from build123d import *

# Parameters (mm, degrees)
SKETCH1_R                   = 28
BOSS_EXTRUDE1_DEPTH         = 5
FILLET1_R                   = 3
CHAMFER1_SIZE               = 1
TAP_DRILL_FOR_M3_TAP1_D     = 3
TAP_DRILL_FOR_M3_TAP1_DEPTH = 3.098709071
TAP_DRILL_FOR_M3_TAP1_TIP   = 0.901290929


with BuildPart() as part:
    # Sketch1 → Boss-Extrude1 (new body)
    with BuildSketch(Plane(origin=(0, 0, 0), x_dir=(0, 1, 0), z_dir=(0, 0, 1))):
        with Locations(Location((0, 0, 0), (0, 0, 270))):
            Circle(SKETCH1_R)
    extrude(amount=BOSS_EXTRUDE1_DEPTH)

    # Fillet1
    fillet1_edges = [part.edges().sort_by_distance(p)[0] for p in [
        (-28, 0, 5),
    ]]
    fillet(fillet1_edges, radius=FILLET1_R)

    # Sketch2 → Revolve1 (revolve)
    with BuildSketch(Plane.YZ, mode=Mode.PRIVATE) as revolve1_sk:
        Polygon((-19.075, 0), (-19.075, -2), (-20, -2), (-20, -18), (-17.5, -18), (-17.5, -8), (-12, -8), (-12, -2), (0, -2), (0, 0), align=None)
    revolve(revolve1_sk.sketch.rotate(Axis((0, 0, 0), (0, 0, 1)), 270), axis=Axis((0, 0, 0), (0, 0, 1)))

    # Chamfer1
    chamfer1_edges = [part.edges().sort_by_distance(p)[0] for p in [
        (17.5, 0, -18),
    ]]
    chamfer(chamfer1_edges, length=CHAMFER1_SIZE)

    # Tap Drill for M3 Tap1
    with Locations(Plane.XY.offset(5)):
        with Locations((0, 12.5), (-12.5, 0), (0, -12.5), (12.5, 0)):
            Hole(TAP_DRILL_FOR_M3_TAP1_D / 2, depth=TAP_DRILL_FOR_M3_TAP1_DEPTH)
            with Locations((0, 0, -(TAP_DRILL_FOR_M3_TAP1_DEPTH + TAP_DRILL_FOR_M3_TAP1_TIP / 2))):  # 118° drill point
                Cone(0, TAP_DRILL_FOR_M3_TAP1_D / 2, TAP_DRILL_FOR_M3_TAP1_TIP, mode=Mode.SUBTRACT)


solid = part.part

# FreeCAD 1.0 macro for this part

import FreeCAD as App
import Part
import Sketcher
from FreeCAD import Vector
Q = App.Units.Quantity


def edges_at(feature, points):
    """Names of the edges that pass closest to the given points."""
    edges = feature.Shape.Edges
    near = lambda p: min(range(len(edges)), key=lambda i: edges[i].distToShape(Part.Vertex(*p))[0])
    return sorted({f"Edge{near(p) + 1}" for p in points})


def add_polygon(sketch, points):
    """Adds a closed chain of lines whose ends are joined by coincident constraints."""
    first, n = sketch.GeometryCount, len(points)
    for a, b in zip(points, points[1:] + points[:1]):
        sketch.addGeometry(Part.LineSegment(App.Vector(*a, 0), App.Vector(*b, 0)), False)
    for i in range(n):
        sketch.addConstraint(Sketcher.Constraint("Coincident", first + i, 2, first + (i + 1) % n, 1))

doc = App.newDocument("Part")
body = doc.addObject("PartDesign::Body", "Body")

sketch1 = body.newObject("Sketcher::SketchObject", "Sketch")
sketch1.AttachmentSupport = (doc.getObject("XY_Plane"), [""])
sketch1.MapMode = "FlatFace"
sketch1.addGeometry(Part.Circle(Vector(0, 0, 0), Vector(0, 0, 1), 28), False)
sketch1.addConstraint([
    Sketcher.Constraint("Coincident", 0, 3, -1, 1),
    Sketcher.Constraint("Diameter", 0, Q("56 mm")),
])
pad1 = body.newObject("PartDesign::Pad", "Pad")
pad1.Profile = sketch1
pad1.Length = 5
doc.recompute()

fillet = body.newObject("PartDesign::Fillet", "Fillet")
fillet.Base = (pad1, edges_at(pad1, [(-28, 0, 5)]))
fillet.Radius = 3

sketch2 = body.newObject("Sketcher::SketchObject", "Sketch001")
sketch2.AttachmentSupport = (doc.getObject("YZ_Plane"), [""])
sketch2.MapMode = "FlatFace"
add_polygon(sketch2, [(-19.1, 0), (-19.1, -2), (-20, -2), (-20, -18), (-17.5, -18), (-17.5, -8), (-12, -8), (-12, -2), (0, -2), (0, 0)])
sketch2.addConstraint([
    Sketcher.Constraint("Vertical", 0),
    Sketcher.Constraint("Horizontal", 1),
    Sketcher.Constraint("Vertical", 2),
    Sketcher.Constraint("Horizontal", 3),
    Sketcher.Constraint("Vertical", 4),
    Sketcher.Constraint("Horizontal", 5),
    Sketcher.Constraint("Vertical", 6),
    Sketcher.Constraint("Horizontal", 7),
    Sketcher.Constraint("Vertical", 8),
    Sketcher.Constraint("Horizontal", 9),
    Sketcher.Constraint("Coincident", 8, 2, -1, 1),
    Sketcher.Constraint("Horizontal", 1, 2, 6, 2),
    Sketcher.Constraint("DistanceX", 7, 1, 7, 2, Q("12 mm")),
    Sketcher.Constraint("DistanceY", 0, 2, 0, 1, Q("2 mm")),
    Sketcher.Constraint("DistanceY", 2, 2, 2, 1, Q("16 mm")),
    Sketcher.Constraint("DistanceY", 4, 1, 4, 2, Q("10 mm")),
    Sketcher.Constraint("DistanceX", 3, 1, 3, 2, Q("2.5 mm")),
    Sketcher.Constraint("DistanceX", 5, 1, 5, 2, Q("5.5 mm")),
    Sketcher.Constraint("DistanceX", 1, 2, 1, 1, Q("0.925 mm")),
])
revolution = body.newObject("PartDesign::Revolution", "Revolution")
revolution.Profile = sketch2
revolution.ReferenceAxis = (sketch2, ["V_Axis"])
revolution.Angle = 360
doc.recompute()

chamfer = body.newObject("PartDesign::Chamfer", "Chamfer")
chamfer.Base = (revolution, edges_at(revolution, [(17.5, 0, -18)]))
chamfer.Size = 1

sketch3 = body.newObject("Sketcher::SketchObject", "Sketch002")
sketch3.AttachmentSupport = (doc.getObject("XY_Plane"), [""])
sketch3.MapMode = "FlatFace"
sketch3.AttachmentOffset = App.Placement(Vector(0, 0, 5), App.Rotation())
sketch3.addGeometry([
    Part.Circle(Vector(0, 12.5, 0), Vector(0, 0, 1), 1.5),
    Part.Circle(Vector(-12.5, 0, 0), Vector(0, 0, 1), 1.5),
    Part.Circle(Vector(0, -12.5, 0), Vector(0, 0, 1), 1.5),
    Part.Circle(Vector(12.5, 0, 0), Vector(0, 0, 1), 1.5),
], False)
sketch3.addConstraint([
    Sketcher.Constraint("Equal", 0, 1),
    Sketcher.Constraint("Equal", 1, 2),
    Sketcher.Constraint("Equal", 2, 3),
    Sketcher.Constraint("Symmetric", 0, 3, 2, 3, -1, 1),
    Sketcher.Constraint("Symmetric", 1, 3, 3, 3, -1, 1),
    Sketcher.Constraint("PointOnObject", 0, 3, -2),
    Sketcher.Constraint("PointOnObject", 1, 3, -1),
    Sketcher.Constraint("Diameter", 0, Q("3 mm")),
    Sketcher.Constraint("DistanceY", 2, 3, 0, 3, Q("25 mm")),
    Sketcher.Constraint("DistanceX", 1, 3, 3, 3, Q("25 mm")),
])
doc.recompute()
hole = body.newObject("PartDesign::Hole", "Hole")
hole.Profile = sketch3
hole.ThreadType = "None"
hole.Diameter = 3
hole.DepthType = "Dimension"
hole.Depth = 3.098709
hole.DrillPoint = "Angled"
hole.DrillPointAngle = 118

doc.recompute()
